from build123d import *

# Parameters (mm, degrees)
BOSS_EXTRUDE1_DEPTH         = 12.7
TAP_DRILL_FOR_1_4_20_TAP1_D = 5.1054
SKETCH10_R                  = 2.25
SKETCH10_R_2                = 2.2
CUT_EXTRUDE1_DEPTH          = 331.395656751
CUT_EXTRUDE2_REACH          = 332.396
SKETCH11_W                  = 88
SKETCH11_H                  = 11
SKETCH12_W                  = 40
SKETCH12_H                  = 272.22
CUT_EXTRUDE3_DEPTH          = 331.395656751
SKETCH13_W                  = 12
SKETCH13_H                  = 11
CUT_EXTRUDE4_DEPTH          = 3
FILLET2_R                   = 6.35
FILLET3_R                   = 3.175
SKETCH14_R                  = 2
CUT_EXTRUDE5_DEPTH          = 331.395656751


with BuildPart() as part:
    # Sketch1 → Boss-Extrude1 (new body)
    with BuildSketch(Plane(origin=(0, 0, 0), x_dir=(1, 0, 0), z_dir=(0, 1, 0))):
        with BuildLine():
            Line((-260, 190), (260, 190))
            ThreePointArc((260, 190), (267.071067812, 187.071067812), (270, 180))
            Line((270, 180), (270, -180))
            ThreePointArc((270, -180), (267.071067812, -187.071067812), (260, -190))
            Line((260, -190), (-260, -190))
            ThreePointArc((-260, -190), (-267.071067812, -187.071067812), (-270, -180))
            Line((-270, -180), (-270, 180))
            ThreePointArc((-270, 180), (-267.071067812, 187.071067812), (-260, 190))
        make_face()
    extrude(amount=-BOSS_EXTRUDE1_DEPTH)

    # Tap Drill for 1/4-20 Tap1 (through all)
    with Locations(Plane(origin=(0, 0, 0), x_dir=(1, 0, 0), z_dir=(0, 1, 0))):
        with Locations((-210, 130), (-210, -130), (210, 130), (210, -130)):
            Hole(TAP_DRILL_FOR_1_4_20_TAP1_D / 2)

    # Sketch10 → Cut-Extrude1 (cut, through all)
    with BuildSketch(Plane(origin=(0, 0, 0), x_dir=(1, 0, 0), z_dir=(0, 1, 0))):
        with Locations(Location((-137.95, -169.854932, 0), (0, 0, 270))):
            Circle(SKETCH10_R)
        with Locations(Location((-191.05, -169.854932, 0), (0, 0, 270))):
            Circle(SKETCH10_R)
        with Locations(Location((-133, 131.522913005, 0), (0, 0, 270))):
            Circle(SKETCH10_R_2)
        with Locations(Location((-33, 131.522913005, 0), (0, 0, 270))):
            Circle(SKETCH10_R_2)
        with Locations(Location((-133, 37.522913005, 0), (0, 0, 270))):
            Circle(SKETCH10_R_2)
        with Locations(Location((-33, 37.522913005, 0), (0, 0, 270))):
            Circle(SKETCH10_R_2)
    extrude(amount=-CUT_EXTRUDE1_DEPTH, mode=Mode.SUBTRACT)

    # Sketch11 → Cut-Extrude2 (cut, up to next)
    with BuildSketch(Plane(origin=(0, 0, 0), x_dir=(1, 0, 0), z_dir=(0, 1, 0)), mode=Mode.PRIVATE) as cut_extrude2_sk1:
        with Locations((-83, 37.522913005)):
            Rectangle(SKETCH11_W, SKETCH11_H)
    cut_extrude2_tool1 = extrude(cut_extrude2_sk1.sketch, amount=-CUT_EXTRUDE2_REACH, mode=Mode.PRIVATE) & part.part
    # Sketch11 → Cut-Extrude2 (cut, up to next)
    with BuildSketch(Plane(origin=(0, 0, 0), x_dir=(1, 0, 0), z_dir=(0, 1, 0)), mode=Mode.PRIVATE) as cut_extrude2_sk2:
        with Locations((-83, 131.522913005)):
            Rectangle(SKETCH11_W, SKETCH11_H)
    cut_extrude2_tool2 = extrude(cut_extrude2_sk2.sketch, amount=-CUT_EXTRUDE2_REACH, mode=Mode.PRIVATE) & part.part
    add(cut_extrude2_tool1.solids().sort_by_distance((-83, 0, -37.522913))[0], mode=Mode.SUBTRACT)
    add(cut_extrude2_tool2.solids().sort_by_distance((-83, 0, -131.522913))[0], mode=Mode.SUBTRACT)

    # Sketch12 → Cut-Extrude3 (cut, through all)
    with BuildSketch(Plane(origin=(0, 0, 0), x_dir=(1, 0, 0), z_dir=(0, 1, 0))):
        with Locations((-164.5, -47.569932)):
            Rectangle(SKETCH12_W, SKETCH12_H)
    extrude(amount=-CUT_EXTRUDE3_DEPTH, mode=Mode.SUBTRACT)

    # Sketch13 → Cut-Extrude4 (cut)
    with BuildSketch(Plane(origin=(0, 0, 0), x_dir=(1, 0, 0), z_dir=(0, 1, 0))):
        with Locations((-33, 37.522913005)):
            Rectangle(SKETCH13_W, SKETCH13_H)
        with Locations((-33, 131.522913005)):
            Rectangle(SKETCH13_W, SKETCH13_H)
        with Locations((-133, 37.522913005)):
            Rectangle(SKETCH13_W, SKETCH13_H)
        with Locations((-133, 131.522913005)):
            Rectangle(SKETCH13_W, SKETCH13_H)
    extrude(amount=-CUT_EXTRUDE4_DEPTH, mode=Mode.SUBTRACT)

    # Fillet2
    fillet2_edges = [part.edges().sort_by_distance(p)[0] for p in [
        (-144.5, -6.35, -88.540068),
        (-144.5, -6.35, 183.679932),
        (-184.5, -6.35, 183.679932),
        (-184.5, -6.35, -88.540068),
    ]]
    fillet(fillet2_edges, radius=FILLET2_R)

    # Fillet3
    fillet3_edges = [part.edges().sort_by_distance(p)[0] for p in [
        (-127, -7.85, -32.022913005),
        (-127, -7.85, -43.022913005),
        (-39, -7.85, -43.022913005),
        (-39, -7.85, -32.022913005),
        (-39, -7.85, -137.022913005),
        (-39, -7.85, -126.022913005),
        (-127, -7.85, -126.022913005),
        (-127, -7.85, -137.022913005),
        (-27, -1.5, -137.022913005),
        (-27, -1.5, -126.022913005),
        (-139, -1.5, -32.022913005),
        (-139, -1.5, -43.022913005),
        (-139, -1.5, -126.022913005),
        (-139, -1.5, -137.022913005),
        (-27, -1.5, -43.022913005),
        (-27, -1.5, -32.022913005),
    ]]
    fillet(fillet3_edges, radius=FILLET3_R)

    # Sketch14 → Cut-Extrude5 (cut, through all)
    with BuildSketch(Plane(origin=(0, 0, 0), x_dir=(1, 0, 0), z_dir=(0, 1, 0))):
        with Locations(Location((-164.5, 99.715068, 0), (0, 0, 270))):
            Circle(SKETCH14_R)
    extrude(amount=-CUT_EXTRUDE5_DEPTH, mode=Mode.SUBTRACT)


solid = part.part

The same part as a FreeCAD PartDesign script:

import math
import FreeCAD as App
import Part
import Sketcher


def edges_at(feature, points):
    """Names of the edges that pass closest to the given points."""
    edges = feature.Shape.Edges
    near = lambda p: min(range(len(edges)), key=lambda i: edges[i].distToShape(Part.Vertex(*p))[0])
    return sorted({f"Edge{near(p) + 1}" for p in points})

doc = App.newDocument("Part")
body = doc.addObject("PartDesign::Body", "Body")

# Sketch on XZ plane
sketch1 = body.newObject("Sketcher::SketchObject", "Sketch")
sketch1.AttachmentSupport = (doc.getObject("XZ_Plane"), [""])
sketch1.MapMode = "FlatFace"
sketch1.addGeometry(Part.LineSegment(App.Vector(260, -190, 0), App.Vector(-260, -190, 0)), False)
sketch1.addGeometry(Part.ArcOfCircle(Part.Circle(App.Vector(-260, -180, 0), App.Vector(0, 0, 1), 10), math.radians(180), math.radians(270)), False)
sketch1.addGeometry(Part.LineSegment(App.Vector(-270, -180, 0), App.Vector(-270, 180, 0)), False)
sketch1.addGeometry(Part.ArcOfCircle(Part.Circle(App.Vector(-260, 180, 0), App.Vector(0, 0, 1), 10), math.radians(90), math.radians(180)), False)
sketch1.addGeometry(Part.LineSegment(App.Vector(-260, 190, 0), App.Vector(260, 190, 0)), False)
sketch1.addGeometry(Part.ArcOfCircle(Part.Circle(App.Vector(260, 180, 0), App.Vector(0, 0, 1), 10), math.radians(0), math.radians(90)), False)
sketch1.addGeometry(Part.LineSegment(App.Vector(270, 180, 0), App.Vector(270, -180, 0)), False)
sketch1.addGeometry(Part.ArcOfCircle(Part.Circle(App.Vector(260, -180, 0), App.Vector(0, 0, 1), 10), math.radians(-90), math.radians(0)), False)
sketch1.addConstraint(Sketcher.Constraint("Tangent", 0, 2, 1, 2))
sketch1.addConstraint(Sketcher.Constraint("Tangent", 1, 1, 2, 1))
sketch1.addConstraint(Sketcher.Constraint("Tangent", 2, 2, 3, 2))
sketch1.addConstraint(Sketcher.Constraint("Tangent", 3, 1, 4, 1))
sketch1.addConstraint(Sketcher.Constraint("Tangent", 4, 2, 5, 2))
sketch1.addConstraint(Sketcher.Constraint("Tangent", 5, 1, 6, 1))
sketch1.addConstraint(Sketcher.Constraint("Tangent", 6, 2, 7, 2))
sketch1.addConstraint(Sketcher.Constraint("Tangent", 7, 1, 0, 1))
sketch1.addConstraint(Sketcher.Constraint("Horizontal", 0))
sketch1.addConstraint(Sketcher.Constraint("Vertical", 2))
sketch1.addConstraint(Sketcher.Constraint("Horizontal", 4))
sketch1.addConstraint(Sketcher.Constraint("Vertical", 6))
sketch1.addConstraint(Sketcher.Constraint("Equal", 1, 3))
sketch1.addConstraint(Sketcher.Constraint("Equal", 3, 5))
sketch1.addConstraint(Sketcher.Constraint("Equal", 5, 7))
sketch1.addConstraint(Sketcher.Constraint("Symmetric", 1, 3, 5, 3, -1, 1))
sketch1.addConstraint(Sketcher.Constraint("Radius", 1, 10.0))
sketch1.addConstraint(Sketcher.Constraint("DistanceX", 0, 2, 0, 1, 520.0))
sketch1.addConstraint(Sketcher.Constraint("DistanceY", 2, 1, 2, 2, 360.0))
pad1 = body.newObject("PartDesign::Pad", "Pad")
pad1.Profile = sketch1
pad1.Length = 12.7

# Sketch on XZ plane
sketch2 = body.newObject("Sketcher::SketchObject", "Sketch001")
sketch2.AttachmentSupport = (doc.getObject("XZ_Plane"), [""])
sketch2.MapMode = "FlatFace"
sketch2.addGeometry(Part.Circle(App.Vector(-210, -130, 0), App.Vector(0, 0, 1), 2.6), False)
sketch2.addGeometry(Part.Circle(App.Vector(-210, 130, 0), App.Vector(0, 0, 1), 2.6), False)
sketch2.addGeometry(Part.Circle(App.Vector(210, -130, 0), App.Vector(0, 0, 1), 2.6), False)
sketch2.addGeometry(Part.Circle(App.Vector(210, 130, 0), App.Vector(0, 0, 1), 2.6), False)
sketch2.addConstraint(Sketcher.Constraint("Equal", 0, 1))
sketch2.addConstraint(Sketcher.Constraint("Equal", 1, 2))
sketch2.addConstraint(Sketcher.Constraint("Equal", 2, 3))
sketch2.addConstraint(Sketcher.Constraint("Symmetric", 1, 3, 2, 3, -1, 1))
sketch2.addConstraint(Sketcher.Constraint("Symmetric", 0, 3, 3, 3, -1, 1))
sketch2.addConstraint(Sketcher.Constraint("Symmetric", 0, 3, 2, 3, -2))
sketch2.addConstraint(Sketcher.Constraint("DistanceX", 0, 3, -1, 1, 210.0))
sketch2.addConstraint(Sketcher.Constraint("DistanceY", 0, 3, -1, 1, 130.0))
sketch2.addConstraint(Sketcher.Constraint("Diameter", 0, 5.1054))
doc.recompute()
hole = body.newObject("PartDesign::Hole", "Hole")
hole.Profile = sketch2
hole.ThreadType = "None"
hole.Diameter = 5.1054
hole.DepthType = "ThroughAll"
hole.Reversed = True

# Sketch on XZ plane
sketch3 = body.newObject("Sketcher::SketchObject", "Sketch002")
sketch3.AttachmentSupport = (doc.getObject("XZ_Plane"), [""])
sketch3.MapMode = "FlatFace"
sketch3.addGeometry(Part.Circle(App.Vector(-137.9, 169.9, 0), App.Vector(0, 0, 1), 2.2), False)
sketch3.addGeometry(Part.Circle(App.Vector(-191.1, 169.9, 0), App.Vector(0, 0, 1), 2.2), False)
sketch3.addGeometry(Part.Circle(App.Vector(-133, -131.5, 0), App.Vector(0, 0, 1), 2.2), False)
sketch3.addGeometry(Part.Circle(App.Vector(-33, -131.5, 0), App.Vector(0, 0, 1), 2.2), False)
sketch3.addGeometry(Part.Circle(App.Vector(-133, -37.5, 0), App.Vector(0, 0, 1), 2.2), False)
sketch3.addGeometry(Part.Circle(App.Vector(-33, -37.5, 0), App.Vector(0, 0, 1), 2.2), False)
sketch3.addConstraint(Sketcher.Constraint("Equal", 0, 1))
sketch3.addConstraint(Sketcher.Constraint("Equal", 2, 3))
sketch3.addConstraint(Sketcher.Constraint("Equal", 3, 4))
sketch3.addConstraint(Sketcher.Constraint("Equal", 4, 5))
sketch3.addConstraint(Sketcher.Constraint("Horizontal", 0, 3, 1, 3))
sketch3.addConstraint(Sketcher.Constraint("Horizontal", 2, 3, 3, 3))
sketch3.addConstraint(Sketcher.Constraint("Horizontal", 4, 3, 5, 3))
sketch3.addConstraint(Sketcher.Constraint("Vertical", 2, 3, 4, 3))
sketch3.addConstraint(Sketcher.Constraint("Vertical", 3, 3, 5, 3))
sketch3.addConstraint(Sketcher.Constraint("Diameter", 0, 4.5))
sketch3.addConstraint(Sketcher.Constraint("Diameter", 2, 4.4))
sketch3.addConstraint(Sketcher.Constraint("DistanceX", 2, 3, -1, 1, 133.0))
sketch3.addConstraint(Sketcher.Constraint("DistanceX", 3, 3, -1, 1, 33.0))
sketch3.addConstraint(Sketcher.Constraint("DistanceY", 2, 3, 4, 3, 94.0))
sketch3.addConstraint(Sketcher.Constraint("DistanceX", 1, 3, 0, 3, 53.1))
sketch3.addConstraint(Sketcher.Constraint("DistanceX", 0, 3, -1, 1, 137.95))
sketch3.addConstraint(Sketcher.Constraint("DistanceY", -1, 1, 0, 3, 169.854932))
sketch3.addConstraint(Sketcher.Constraint("DistanceY", 2, 3, -1, 1, 131.522913))
pocket1 = body.newObject("PartDesign::Pocket", "Pocket")
pocket1.Profile = sketch3
pocket1.Type = "ThroughAll"
pocket1.Reversed = True

# Sketch on XZ plane
sketch4 = body.newObject("Sketcher::SketchObject", "Sketch003")
sketch4.AttachmentSupport = (doc.getObject("XZ_Plane"), [""])
sketch4.MapMode = "FlatFace"
sketch4.addGeometry(Part.LineSegment(App.Vector(-127, -43, 0), App.Vector(-127, -32, 0)), False)
sketch4.addGeometry(Part.LineSegment(App.Vector(-127, -32, 0), App.Vector(-39, -32, 0)), False)
sketch4.addGeometry(Part.LineSegment(App.Vector(-39, -32, 0), App.Vector(-39, -43, 0)), False)
sketch4.addGeometry(Part.LineSegment(App.Vector(-39, -43, 0), App.Vector(-127, -43, 0)), False)
sketch4.addConstraint(Sketcher.Constraint("Coincident", 0, 2, 1, 1))
sketch4.addConstraint(Sketcher.Constraint("Coincident", 1, 2, 2, 1))
sketch4.addConstraint(Sketcher.Constraint("Coincident", 2, 2, 3, 1))
sketch4.addConstraint(Sketcher.Constraint("Coincident", 3, 2, 0, 1))
sketch4.addConstraint(Sketcher.Constraint("Vertical", 0))
sketch4.addConstraint(Sketcher.Constraint("Horizontal", 1))
sketch4.addConstraint(Sketcher.Constraint("Vertical", 2))
sketch4.addConstraint(Sketcher.Constraint("Horizontal", 3))
sketch4.addConstraint(Sketcher.Constraint("DistanceX", 1, 1, 1, 2, 88.0))
sketch4.addConstraint(Sketcher.Constraint("DistanceY", 0, 1, 0, 2, 11.0))
sketch4.addConstraint(Sketcher.Constraint("DistanceX", 0, 2, -1, 1, 127.0))
sketch4.addConstraint(Sketcher.Constraint("DistanceY", 0, 2, -1, 1, 32.022913))
pocket2 = body.newObject("PartDesign::Pocket", "Pocket001")
pocket2.Profile = sketch4
pocket2.Type = "UpToFirst"
pocket2.Reversed = True

# Sketch on XZ plane
sketch5 = body.newObject("Sketcher::SketchObject", "Sketch004")
sketch5.AttachmentSupport = (doc.getObject("XZ_Plane"), [""])
sketch5.MapMode = "FlatFace"
sketch5.addGeometry(Part.LineSegment(App.Vector(-127, -137, 0), App.Vector(-127, -126, 0)), False)
sketch5.addGeometry(Part.LineSegment(App.Vector(-127, -126, 0), App.Vector(-39, -126, 0)), False)
sketch5.addGeometry(Part.LineSegment(App.Vector(-39, -126, 0), App.Vector(-39, -137, 0)), False)
sketch5.addGeometry(Part.LineSegment(App.Vector(-39, -137, 0), App.Vector(-127, -137, 0)), False)
sketch5.addConstraint(Sketcher.Constraint("Coincident", 0, 2, 1, 1))
sketch5.addConstraint(Sketcher.Constraint("Coincident", 1, 2, 2, 1))
sketch5.addConstraint(Sketcher.Constraint("Coincident", 2, 2, 3, 1))
sketch5.addConstraint(Sketcher.Constraint("Coincident", 3, 2, 0, 1))
sketch5.addConstraint(Sketcher.Constraint("Vertical", 0))
sketch5.addConstraint(Sketcher.Constraint("Horizontal", 1))
sketch5.addConstraint(Sketcher.Constraint("Vertical", 2))
sketch5.addConstraint(Sketcher.Constraint("Horizontal", 3))
sketch5.addConstraint(Sketcher.Constraint("DistanceX", 1, 1, 1, 2, 88.0))
sketch5.addConstraint(Sketcher.Constraint("DistanceY", 0, 1, 0, 2, 11.0))
sketch5.addConstraint(Sketcher.Constraint("DistanceX", 0, 2, -1, 1, 127.0))
sketch5.addConstraint(Sketcher.Constraint("DistanceY", 0, 2, -1, 1, 126.022913))
pocket3 = body.newObject("PartDesign::Pocket", "Pocket002")
pocket3.Profile = sketch5
pocket3.Type = "UpToFirst"
pocket3.Reversed = True

# Sketch on XZ plane
sketch6 = body.newObject("Sketcher::SketchObject", "Sketch005")
sketch6.AttachmentSupport = (doc.getObject("XZ_Plane"), [""])
sketch6.MapMode = "FlatFace"
sketch6.addGeometry(Part.LineSegment(App.Vector(-184, -89, 0), App.Vector(-184, 184, 0)), False)
sketch6.addGeometry(Part.LineSegment(App.Vector(-184, 184, 0), App.Vector(-144, 184, 0)), False)
sketch6.addGeometry(Part.LineSegment(App.Vector(-144, 184, 0), App.Vector(-144, -89, 0)), False)
sketch6.addGeometry(Part.LineSegment(App.Vector(-144, -89, 0), App.Vector(-184, -89, 0)), False)
sketch6.addConstraint(Sketcher.Constraint("Coincident", 0, 2, 1, 1))
sketch6.addConstraint(Sketcher.Constraint("Coincident", 1, 2, 2, 1))
sketch6.addConstraint(Sketcher.Constraint("Coincident", 2, 2, 3, 1))
sketch6.addConstraint(Sketcher.Constraint("Coincident", 3, 2, 0, 1))
sketch6.addConstraint(Sketcher.Constraint("Vertical", 0))
sketch6.addConstraint(Sketcher.Constraint("Horizontal", 1))
sketch6.addConstraint(Sketcher.Constraint("Vertical", 2))
sketch6.addConstraint(Sketcher.Constraint("Horizontal", 3))
sketch6.addConstraint(Sketcher.Constraint("DistanceX", 1, 1, 1, 2, 40.0))
sketch6.addConstraint(Sketcher.Constraint("DistanceY", 0, 1, 0, 2, 272.22))
sketch6.addConstraint(Sketcher.Constraint("DistanceX", 0, 2, -1, 1, 184.5))
sketch6.addConstraint(Sketcher.Constraint("DistanceY", -1, 1, 0, 2, 183.679932))
pocket4 = body.newObject("PartDesign::Pocket", "Pocket003")
pocket4.Profile = sketch6
pocket4.Type = "ThroughAll"
pocket4.Reversed = True

# Sketch on XZ plane
sketch7 = body.newObject("Sketcher::SketchObject", "Sketch006")
sketch7.AttachmentSupport = (doc.getObject("XZ_Plane"), [""])
sketch7.MapMode = "FlatFace"
sketch7.addGeometry(Part.LineSegment(App.Vector(-39, -43, 0), App.Vector(-39, -32, 0)), False)
sketch7.addGeometry(Part.LineSegment(App.Vector(-39, -32, 0), App.Vector(-27, -32, 0)), False)
sketch7.addGeometry(Part.LineSegment(App.Vector(-27, -32, 0), App.Vector(-27, -43, 0)), False)
sketch7.addGeometry(Part.LineSegment(App.Vector(-27, -43, 0), App.Vector(-39, -43, 0)), False)
sketch7.addGeometry(Part.LineSegment(App.Vector(-39, -137, 0), App.Vector(-39, -126, 0)), False)
sketch7.addGeometry(Part.LineSegment(App.Vector(-39, -126, 0), App.Vector(-27, -126, 0)), False)
sketch7.addGeometry(Part.LineSegment(App.Vector(-27, -126, 0), App.Vector(-27, -137, 0)), False)
sketch7.addGeometry(Part.LineSegment(App.Vector(-27, -137, 0), App.Vector(-39, -137, 0)), False)
sketch7.addGeometry(Part.LineSegment(App.Vector(-139, -43, 0), App.Vector(-139, -32, 0)), False)
sketch7.addGeometry(Part.LineSegment(App.Vector(-139, -32, 0), App.Vector(-127, -32, 0)), False)
sketch7.addGeometry(Part.LineSegment(App.Vector(-127, -32, 0), App.Vector(-127, -43, 0)), False)
sketch7.addGeometry(Part.LineSegment(App.Vector(-127, -43, 0), App.Vector(-139, -43, 0)), False)
sketch7.addGeometry(Part.LineSegment(App.Vector(-139, -137, 0), App.Vector(-139, -126, 0)), False)
sketch7.addGeometry(Part.LineSegment(App.Vector(-139, -126, 0), App.Vector(-127, -126, 0)), False)
sketch7.addGeometry(Part.LineSegment(App.Vector(-127, -126, 0), App.Vector(-127, -137, 0)), False)
sketch7.addGeometry(Part.LineSegment(App.Vector(-127, -137, 0), App.Vector(-139, -137, 0)), False)
sketch7.addConstraint(Sketcher.Constraint("Coincident", 0, 2, 1, 1))
sketch7.addConstraint(Sketcher.Constraint("Coincident", 1, 2, 2, 1))
sketch7.addConstraint(Sketcher.Constraint("Coincident", 2, 2, 3, 1))
sketch7.addConstraint(Sketcher.Constraint("Coincident", 3, 2, 0, 1))
sketch7.addConstraint(Sketcher.Constraint("Coincident", 4, 2, 5, 1))
sketch7.addConstraint(Sketcher.Constraint("Coincident", 5, 2, 6, 1))
sketch7.addConstraint(Sketcher.Constraint("Coincident", 6, 2, 7, 1))
sketch7.addConstraint(Sketcher.Constraint("Coincident", 7, 2, 4, 1))
sketch7.addConstraint(Sketcher.Constraint("Coincident", 8, 2, 9, 1))
sketch7.addConstraint(Sketcher.Constraint("Coincident", 9, 2, 10, 1))
sketch7.addConstraint(Sketcher.Constraint("Coincident", 10, 2, 11, 1))
sketch7.addConstraint(Sketcher.Constraint("Coincident", 11, 2, 8, 1))
sketch7.addConstraint(Sketcher.Constraint("Coincident", 12, 2, 13, 1))
sketch7.addConstraint(Sketcher.Constraint("Coincident", 13, 2, 14, 1))
sketch7.addConstraint(Sketcher.Constraint("Coincident", 14, 2, 15, 1))
sketch7.addConstraint(Sketcher.Constraint("Coincident", 15, 2, 12, 1))
sketch7.addConstraint(Sketcher.Constraint("Vertical", 0))
sketch7.addConstraint(Sketcher.Constraint("Horizontal", 1))
sketch7.addConstraint(Sketcher.Constraint("Vertical", 2))
sketch7.addConstraint(Sketcher.Constraint("Horizontal", 3))
sketch7.addConstraint(Sketcher.Constraint("Vertical", 4))
sketch7.addConstraint(Sketcher.Constraint("Horizontal", 5))
sketch7.addConstraint(Sketcher.Constraint("Vertical", 6))
sketch7.addConstraint(Sketcher.Constraint("Horizontal", 7))
sketch7.addConstraint(Sketcher.Constraint("Vertical", 8))
sketch7.addConstraint(Sketcher.Constraint("Horizontal", 9))
sketch7.addConstraint(Sketcher.Constraint("Vertical", 10))
sketch7.addConstraint(Sketcher.Constraint("Horizontal", 11))
sketch7.addConstraint(Sketcher.Constraint("Vertical", 12))
sketch7.addConstraint(Sketcher.Constraint("Horizontal", 13))
sketch7.addConstraint(Sketcher.Constraint("Vertical", 14))
sketch7.addConstraint(Sketcher.Constraint("Horizontal", 15))
sketch7.addConstraint(Sketcher.Constraint("Horizontal", 1, 2, 8, 2))
sketch7.addConstraint(Sketcher.Constraint("Horizontal", 3, 2, 10, 2))
sketch7.addConstraint(Sketcher.Constraint("Horizontal", 5, 2, 12, 2))
sketch7.addConstraint(Sketcher.Constraint("Horizontal", 7, 2, 14, 2))
sketch7.addConstraint(Sketcher.Constraint("Vertical", 3, 2, 4, 2))
sketch7.addConstraint(Sketcher.Constraint("Vertical", 2, 2, 5, 2))
sketch7.addConstraint(Sketcher.Constraint("Vertical", 11, 2, 12, 2))
sketch7.addConstraint(Sketcher.Constraint("Vertical", 10, 2, 13, 2))
sketch7.addConstraint(Sketcher.Constraint("Equal", 7, 9))
sketch7.addConstraint(Sketcher.Constraint("Equal", 2, 4))
sketch7.addConstraint(Sketcher.Constraint("DistanceX", 1, 1, 1, 2, 12.0))
sketch7.addConstraint(Sketcher.Constraint("DistanceY", 0, 1, 0, 2, 11.0))
sketch7.addConstraint(Sketcher.Constraint("DistanceX", 0, 2, -1, 1, 39.0))
sketch7.addConstraint(Sketcher.Constraint("DistanceX", 8, 2, -1, 1, 139.0))
sketch7.addConstraint(Sketcher.Constraint("DistanceY", 4, 2, 3, 2, 83.0))
sketch7.addConstraint(Sketcher.Constraint("DistanceY", 0, 2, -1, 1, 32.022913))
pocket5 = body.newObject("PartDesign::Pocket", "Pocket004")
pocket5.Profile = sketch7
pocket5.Length = 3
pocket5.Reversed = True
doc.recompute()

fillet = body.newObject("PartDesign::Fillet", "Fillet")
fillet.Base = (pocket5, edges_at(pocket5, [
    (-144.5, -6.35, -88.54),
    (-144.5, -6.35, 183.68),
    (-184.5, -6.35, 183.68),
    (-184.5, -6.35, -88.54),
]))
fillet.Radius = 6.35
doc.recompute()

fillet2 = body.newObject("PartDesign::Fillet", "Fillet001")
fillet2.Base = (fillet, edges_at(fillet, [
    (-127, -7.85, -32.023),
    (-127, -7.85, -43.023),
    (-39, -7.85, -43.023),
    (-39, -7.85, -32.023),
    (-39, -7.85, -137.023),
    (-39, -7.85, -126.023),
    (-127, -7.85, -126.023),
    (-127, -7.85, -137.023),
    (-27, -1.5, -137.023),
    (-27, -1.5, -126.023),
    (-139, -1.5, -32.023),
    (-139, -1.5, -43.023),
    (-139, -1.5, -126.023),
    (-139, -1.5, -137.023),
    (-27, -1.5, -43.023),
    (-27, -1.5, -32.023),
]))
fillet2.Radius = 3.175

# Sketch on XZ plane
sketch8 = body.newObject("Sketcher::SketchObject", "Sketch007")
sketch8.AttachmentSupport = (doc.getObject("XZ_Plane"), [""])
sketch8.MapMode = "FlatFace"
sketch8.addGeometry(Part.Circle(App.Vector(-164.5, -99.7, 0), App.Vector(0, 0, 1), 2), False)
sketch8.addConstraint(Sketcher.Constraint("Diameter", 0, 4.0))
sketch8.addConstraint(Sketcher.Constraint("DistanceX", 0, 3, -1, 1, 164.5))
sketch8.addConstraint(Sketcher.Constraint("DistanceY", 0, 3, -1, 1, 99.715068))
pocket6 = body.newObject("PartDesign::Pocket", "Pocket005")
pocket6.Profile = sketch8
pocket6.Type = "ThroughAll"
pocket6.Reversed = True

doc.recompute()
